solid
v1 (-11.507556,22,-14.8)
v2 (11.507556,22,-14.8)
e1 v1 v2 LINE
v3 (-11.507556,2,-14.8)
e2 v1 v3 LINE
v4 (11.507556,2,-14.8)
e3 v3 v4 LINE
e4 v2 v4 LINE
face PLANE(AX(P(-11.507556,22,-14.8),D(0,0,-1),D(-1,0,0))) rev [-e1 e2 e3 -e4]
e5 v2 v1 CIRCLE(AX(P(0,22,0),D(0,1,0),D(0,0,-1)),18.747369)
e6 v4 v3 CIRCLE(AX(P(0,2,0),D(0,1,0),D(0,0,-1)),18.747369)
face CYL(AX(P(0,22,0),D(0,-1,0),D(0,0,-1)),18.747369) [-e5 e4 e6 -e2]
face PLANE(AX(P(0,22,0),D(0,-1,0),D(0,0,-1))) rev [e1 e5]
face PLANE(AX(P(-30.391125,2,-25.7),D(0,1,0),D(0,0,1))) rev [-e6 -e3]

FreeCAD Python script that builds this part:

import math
import FreeCAD as App
import Part
import Sketcher

V = App.Vector
Q = App.Units.Quantity

doc = App.newDocument("Part")
body = doc.addObject("PartDesign::Body", "Body")

# Sketch on XZ plane
sketch1 = doc.addObject("Sketcher::SketchObject", "Sketch")
body.addObject(sketch1)
sketch1.AttachmentSupport = (doc.XZ_Plane, [""])
sketch1.MapMode = "FlatFace"
sketch1.addGeometry(Part.Circle(V(0, 0, 0), V(0, 0, 1), 26), False)
sketch1.addConstraint(Sketcher.Constraint("Coincident", 0, 3, -1, 1))
sketch1.addConstraint(Sketcher.Constraint("Diameter", 0, Q("51.4 mm")))
pad1 = doc.addObject("PartDesign::Pad", "Pad")
body.addObject(pad1)
pad1.Profile = sketch1
pad1.Length = 100
pad1.Reversed = True

# Sketch on XZ plane
sketch2 = doc.addObject("Sketcher::SketchObject", "Sketch001")
body.addObject(sketch2)
sketch2.AttachmentSupport = (doc.XZ_Plane, [""])
sketch2.MapMode = "FlatFace"
sketch2.AttachmentOffset = App.Placement(V(0, 0, -2), App.Rotation())
sketch2.addGeometry(Part.Circle(V(0, 0, 0), V(0, 0, 1), 26), False)
sketch2.addConstraint(Sketcher.Constraint("Coincident", 0, 3, -1, 1))
sketch2.addConstraint(Sketcher.Constraint("Diameter", 0, Q("51.4 mm")))
pocket1 = doc.addObject("PartDesign::Pocket", "Pocket")
body.addObject(pocket1)
pocket1.Profile = sketch2
pocket1.Length = 98

# Sketch on XZ plane
sketch3 = doc.addObject("Sketcher::SketchObject", "Sketch002")
body.addObject(sketch3)
sketch3.AttachmentSupport = (doc.XZ_Plane, [""])
sketch3.MapMode = "FlatFace"
sketch3.AttachmentOffset = App.Placement(V(0, 0, -2), App.Rotation())
sketch3.addGeometry(Part.LineSegment(V(-12, -15, 0), V(12, -15, 0)), False)
sketch3.addGeometry(Part.ArcOfCircle(Part.Circle(V(0, 0, 0), V(0, 0, 1), 19), math.radians(-128), math.radians(-52)), False)
sketch3.addConstraint(Sketcher.Constraint("Coincident", 0, 1, 1, 1))
sketch3.addConstraint(Sketcher.Constraint("Coincident", 1, 2, 0, 2))
sketch3.addConstraint(Sketcher.Constraint("Horizontal", 0))
sketch3.addConstraint(Sketcher.Constraint("Coincident", 1, 3, -1, 1))
sketch3.addConstraint(Sketcher.Constraint("DistanceY", 0, 1, -1, 1, Q("14.8 mm")))
sketch3.addConstraint(Sketcher.Constraint("Radius", 1, Q("18.747369 mm")))
pad2 = doc.addObject("PartDesign::Pad", "Pad001")
body.addObject(pad2)
pad2.Profile = sketch3
pad2.Length = 20
pad2.Reversed = True

# Sketch on XY plane
sketch4 = doc.addObject("Sketcher::SketchObject", "Sketch003")
body.addObject(sketch4)
sketch4.AttachmentSupport = (doc.XY_Plane, [""])
sketch4.MapMode = "FlatFace"
sketch4.addGeometry(Part.LineSegment(V(-30.4, 2, 0), V(-30.4, 0, 0)), False)
sketch4.addGeometry(Part.LineSegment(V(-30.4, 0, 0), V(29.4, 0, 0)), False)
sketch4.addGeometry(Part.LineSegment(V(29.4, 0, 0), V(29.4, 2, 0)), False)
sketch4.addGeometry(Part.LineSegment(V(29.4, 2, 0), V(-30.4, 2, 0)), False)
sketch4.addConstraint(Sketcher.Constraint("Coincident", 0, 2, 1, 1))
sketch4.addConstraint(Sketcher.Constraint("Coincident", 1, 2, 2, 1))
sketch4.addConstraint(Sketcher.Constraint("Coincident", 2, 2, 3, 1))
sketch4.addConstraint(Sketcher.Constraint("Coincident", 3, 2, 0, 1))
sketch4.addConstraint(Sketcher.Constraint("Vertical", 0))
sketch4.addConstraint(Sketcher.Constraint("Horizontal", 1))
sketch4.addConstraint(Sketcher.Constraint("Vertical", 2))
sketch4.addConstraint(Sketcher.Constraint("Horizontal", 3))
sketch4.addConstraint(Sketcher.Constraint("PointOnObject", 0, 2, -1))
sketch4.addConstraint(Sketcher.Constraint("DistanceY", 0, 2, 0, 1, Q("2 mm")))
sketch4.addConstraint(Sketcher.Constraint("DistanceX", 1, 1, 1, 2, Q("59.759495 mm")))
sketch4.addConstraint(Sketcher.Constraint("DistanceX", -1, 1, 1, 2, Q("29.36837 mm")))
pocket2 = doc.addObject("PartDesign::Pocket", "Pocket001")
body.addObject(pocket2)
pocket2.Profile = sketch4
pocket2.Type = "ThroughAll"
pocket2.Midplane = True

doc.recompute()
